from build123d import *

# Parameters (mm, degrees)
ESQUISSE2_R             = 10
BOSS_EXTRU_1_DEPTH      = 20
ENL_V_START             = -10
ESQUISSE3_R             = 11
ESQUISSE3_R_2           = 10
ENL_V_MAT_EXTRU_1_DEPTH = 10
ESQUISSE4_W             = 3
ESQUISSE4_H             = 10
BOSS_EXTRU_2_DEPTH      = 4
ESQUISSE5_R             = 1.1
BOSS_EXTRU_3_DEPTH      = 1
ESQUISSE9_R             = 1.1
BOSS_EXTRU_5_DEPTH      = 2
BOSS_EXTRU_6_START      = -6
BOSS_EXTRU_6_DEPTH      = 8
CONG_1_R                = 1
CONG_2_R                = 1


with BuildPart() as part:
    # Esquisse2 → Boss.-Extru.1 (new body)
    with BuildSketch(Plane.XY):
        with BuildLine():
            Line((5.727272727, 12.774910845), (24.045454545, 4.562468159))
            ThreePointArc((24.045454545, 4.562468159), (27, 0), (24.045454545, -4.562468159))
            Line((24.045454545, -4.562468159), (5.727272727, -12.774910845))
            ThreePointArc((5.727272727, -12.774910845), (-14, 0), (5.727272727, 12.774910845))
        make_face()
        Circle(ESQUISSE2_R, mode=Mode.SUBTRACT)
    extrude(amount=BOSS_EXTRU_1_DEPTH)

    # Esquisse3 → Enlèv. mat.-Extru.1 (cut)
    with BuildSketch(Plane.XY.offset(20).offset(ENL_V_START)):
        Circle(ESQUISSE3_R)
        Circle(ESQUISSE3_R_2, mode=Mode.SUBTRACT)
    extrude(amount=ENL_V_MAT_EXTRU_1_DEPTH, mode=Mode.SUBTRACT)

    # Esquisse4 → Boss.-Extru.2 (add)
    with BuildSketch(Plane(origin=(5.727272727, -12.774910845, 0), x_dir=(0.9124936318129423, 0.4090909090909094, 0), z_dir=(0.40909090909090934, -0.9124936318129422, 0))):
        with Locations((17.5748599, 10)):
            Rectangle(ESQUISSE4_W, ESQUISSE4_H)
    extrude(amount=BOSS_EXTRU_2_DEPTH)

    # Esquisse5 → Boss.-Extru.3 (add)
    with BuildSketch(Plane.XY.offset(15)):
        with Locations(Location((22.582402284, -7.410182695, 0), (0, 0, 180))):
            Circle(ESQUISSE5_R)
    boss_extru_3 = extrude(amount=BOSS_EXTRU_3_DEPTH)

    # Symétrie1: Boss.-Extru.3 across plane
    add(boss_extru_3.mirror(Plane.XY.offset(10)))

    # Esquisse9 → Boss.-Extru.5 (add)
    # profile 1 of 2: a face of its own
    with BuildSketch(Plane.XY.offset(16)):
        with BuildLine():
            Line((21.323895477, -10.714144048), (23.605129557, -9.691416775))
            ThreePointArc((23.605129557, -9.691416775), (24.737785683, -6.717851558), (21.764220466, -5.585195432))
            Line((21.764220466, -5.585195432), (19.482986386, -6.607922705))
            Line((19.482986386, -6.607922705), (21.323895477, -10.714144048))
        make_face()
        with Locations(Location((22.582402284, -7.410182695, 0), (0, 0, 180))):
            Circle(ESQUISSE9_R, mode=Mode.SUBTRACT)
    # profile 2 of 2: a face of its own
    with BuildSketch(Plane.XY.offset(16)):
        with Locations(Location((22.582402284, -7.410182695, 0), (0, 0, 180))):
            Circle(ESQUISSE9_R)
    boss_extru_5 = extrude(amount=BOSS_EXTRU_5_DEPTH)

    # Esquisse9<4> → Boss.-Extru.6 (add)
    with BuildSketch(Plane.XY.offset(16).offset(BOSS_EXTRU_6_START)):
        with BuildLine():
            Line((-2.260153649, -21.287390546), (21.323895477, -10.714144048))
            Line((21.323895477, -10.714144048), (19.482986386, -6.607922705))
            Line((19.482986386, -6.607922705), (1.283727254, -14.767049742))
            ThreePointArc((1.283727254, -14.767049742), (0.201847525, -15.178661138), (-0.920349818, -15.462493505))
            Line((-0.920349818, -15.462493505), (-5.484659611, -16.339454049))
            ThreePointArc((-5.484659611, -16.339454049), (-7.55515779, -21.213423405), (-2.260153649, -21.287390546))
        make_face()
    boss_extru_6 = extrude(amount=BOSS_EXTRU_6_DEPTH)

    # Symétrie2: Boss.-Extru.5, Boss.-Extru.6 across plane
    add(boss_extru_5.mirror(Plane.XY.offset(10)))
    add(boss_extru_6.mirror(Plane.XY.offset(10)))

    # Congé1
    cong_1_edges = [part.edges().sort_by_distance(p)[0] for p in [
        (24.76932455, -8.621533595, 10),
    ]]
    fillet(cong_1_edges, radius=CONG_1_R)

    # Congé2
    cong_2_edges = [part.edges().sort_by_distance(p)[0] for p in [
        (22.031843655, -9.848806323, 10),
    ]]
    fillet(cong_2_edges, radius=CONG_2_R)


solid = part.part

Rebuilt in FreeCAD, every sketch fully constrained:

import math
import FreeCAD as App
import Part
import Sketcher
from FreeCAD import Vector


def edges_at(feature, points):
    """Names of the edges that pass closest to the given points."""
    edges = feature.Shape.Edges
    near = lambda p: min(range(len(edges)), key=lambda i: edges[i].distToShape(Part.Vertex(*p))[0])
    return sorted({f"Edge{near(p) + 1}" for p in points})


def add_polygon(sketch, points):
    """Adds a closed chain of lines whose ends are joined by coincident constraints."""
    first, n = sketch.GeometryCount, len(points)
    for a, b in zip(points, points[1:] + points[:1]):
        sketch.addGeometry(Part.LineSegment(App.Vector(*a, 0), App.Vector(*b, 0)), False)
    for i in range(n):
        sketch.addConstraint(Sketcher.Constraint("Coincident", first + i, 2, first + (i + 1) % n, 1))

doc = App.newDocument("Part")
body = doc.addObject("PartDesign::Body", "Body")

sketch1 = doc.addObject("Sketcher::SketchObject", "Sketch")
body.addObject(sketch1)
sketch1.AttachmentSupport = (doc.XY_Plane, [""])
sketch1.MapMode = "FlatFace"
sketch1.addGeometry([
    Part.LineSegment(Vector(24, 5, 0), Vector(6, 13, 0)),
    Part.ArcOfCircle(Part.Circle(Vector(0, 0, 0), Vector(0, 0, 1), 14), math.radians(66), math.radians(294)),
    Part.LineSegment(Vector(6, -13, 0), Vector(24, -5, 0)),
    Part.ArcOfCircle(Part.Circle(Vector(22, 0, 0), Vector(0, 0, 1), 5), math.radians(-66), math.radians(66)),
    Part.Circle(Vector(0, 0, 0), Vector(0, 0, 1), 10),
], False)
sketch1.addConstraint([
    Sketcher.Constraint("Tangent", 0, 2, 1, 1),
    Sketcher.Constraint("Tangent", 1, 2, 2, 1),
    Sketcher.Constraint("Tangent", 2, 2, 3, 1),
    Sketcher.Constraint("Tangent", 3, 2, 0, 1),
    Sketcher.Constraint("Coincident", 1, 3, -1, 1),
    Sketcher.Constraint("Coincident", 4, 3, -1, 1),
    Sketcher.Constraint("PointOnObject", 3, 3, -1),
    Sketcher.Constraint("Diameter", 4, 20.0),
    Sketcher.Constraint("Radius", 1, 14.0),
    Sketcher.Constraint("Radius", 3, 5.0),
    Sketcher.Constraint("DistanceX", -1, 1, 3, 3, 22.0),
])
pad1 = doc.addObject("PartDesign::Pad", "Pad")
body.addObject(pad1)
pad1.Profile = sketch1
pad1.Length = 20

sketch2 = doc.addObject("Sketcher::SketchObject", "Sketch001")
body.addObject(sketch2)
sketch2.AttachmentSupport = (doc.XY_Plane, [""])
sketch2.MapMode = "FlatFace"
sketch2.AttachmentOffset = App.Placement(Vector(0, 0, 10), App.Rotation())
sketch2.addGeometry([
    Part.Circle(Vector(0, 0, 0), Vector(0, 0, 1), 11),
    Part.Circle(Vector(0, 0, 0), Vector(0, 0, 1), 10),
], False)
sketch2.addConstraint([
    Sketcher.Constraint("Coincident", 0, 3, -1, 1),
    Sketcher.Constraint("Coincident", 1, 3, -1, 1),
    Sketcher.Constraint("Diameter", 0, 22.0),
    Sketcher.Constraint("Diameter", 1, 20.0),
])
pocket1 = doc.addObject("PartDesign::Pocket", "Pocket")
body.addObject(pocket1)
pocket1.Profile = sketch2
pocket1.Length = 10
pocket1.Reversed = True

sketch3 = doc.addObject("Sketcher::SketchObject", "Sketch002")
body.addObject(sketch3)
sketch3.Placement = App.Placement(Vector(5.727273, -12.774911, 0), App.Rotation(Vector(0.912493632, 0.409090909, 0), Vector(0, 0, 1), Vector(0.409090909, -0.912493632, 0), "ZXY"))
add_polygon(sketch3, [(16.1, 15), (16.1, 5), (19.1, 5), (19.1, 15)])
sketch3.addConstraint([
    Sketcher.Constraint("Vertical", 0),
    Sketcher.Constraint("Horizontal", 1),
    Sketcher.Constraint("Vertical", 2),
    Sketcher.Constraint("Horizontal", 3),
    Sketcher.Constraint("DistanceX", 1, 1, 1, 2, 3.0),
    Sketcher.Constraint("DistanceY", 0, 2, 0, 1, 10.0),
    Sketcher.Constraint("DistanceY", -1, 1, 0, 2, 5.0),
    Sketcher.Constraint("DistanceX", -1, 1, 0, 2, 16.07486),
])
pad2 = doc.addObject("PartDesign::Pad", "Pad001")
body.addObject(pad2)
pad2.Profile = sketch3
pad2.Length = 4

sketch4 = doc.addObject("Sketcher::SketchObject", "Sketch003")
body.addObject(sketch4)
sketch4.AttachmentSupport = (doc.XY_Plane, [""])
sketch4.MapMode = "FlatFace"
sketch4.AttachmentOffset = App.Placement(Vector(0, 0, 15), App.Rotation())
sketch4.addGeometry(Part.Circle(Vector(22.6, -7.4, 0), Vector(0, 0, 1), 1.1), False)
sketch4.addConstraint([
    Sketcher.Constraint("Diameter", 0, 2.2),
    Sketcher.Constraint("DistanceX", -1, 1, 0, 3, 22.582402),
    Sketcher.Constraint("DistanceY", 0, 3, -1, 1, 7.410183),
])
pad3 = doc.addObject("PartDesign::Pad", "Pad002")
body.addObject(pad3)
pad3.Profile = sketch4
pad3.Length = 1
doc.recompute()

datumplane = doc.addObject("PartDesign::Plane", "DatumPlane")
body.addObject(datumplane)
datumplane.AttachmentSupport = (doc.XY_Plane, [""])
datumplane.MapMode = "FlatFace"
datumplane.AttachmentOffset = App.Placement(Vector(0, 0, 10), App.Rotation())
mirrored = doc.addObject("PartDesign::Mirrored", "Mirrored")
body.addObject(mirrored)
mirrored.Originals = [pad3]
mirrored.MirrorPlane = (datumplane, [""])
body.Tip = mirrored

sketch5 = doc.addObject("Sketcher::SketchObject", "Sketch004")
body.addObject(sketch5)
sketch5.AttachmentSupport = (doc.XY_Plane, [""])
sketch5.MapMode = "FlatFace"
sketch5.AttachmentOffset = App.Placement(Vector(0, 0, 16), App.Rotation())
sketch5.addGeometry([
    Part.LineSegment(Vector(21.3, -10.7, 0), Vector(23.6, -9.7, 0)),
    Part.ArcOfCircle(Part.Circle(Vector(22.7, -7.6, 0), Vector(0, 0, 1), 2.2), math.radians(-66), math.radians(114)),
    Part.LineSegment(Vector(21.8, -5.6, 0), Vector(19.5, -6.6, 0)),
    Part.LineSegment(Vector(19.5, -6.6, 0), Vector(21.3, -10.7, 0)),
], False)
sketch5.addConstraint([
    Sketcher.Constraint("Tangent", 0, 2, 1, 1),
    Sketcher.Constraint("Tangent", 1, 2, 2, 1),
    Sketcher.Constraint("Coincident", 2, 2, 3, 1),
    Sketcher.Constraint("Coincident", 3, 2, 0, 1),
    Sketcher.Constraint("Parallel", 0, 2),
    Sketcher.Constraint("Perpendicular", 2, 3),
    Sketcher.Constraint("Radius", 1, 2.25),
    Sketcher.Constraint("Distance", 0, 2.5),
    Sketcher.Constraint("DistanceX", -1, 1, 0, 2, 23.60513),
    Sketcher.Constraint("DistanceX", -1, 1, 1, 2, 21.76422),
    Sketcher.Constraint("DistanceY", 1, 3, -1, 1, 7.638306),
])
pad4 = doc.addObject("PartDesign::Pad", "Pad003")
body.addObject(pad4)
pad4.Profile = sketch5
pad4.Length = 2

sketch6 = doc.addObject("Sketcher::SketchObject", "Sketch005")
body.addObject(sketch6)
sketch6.AttachmentSupport = (doc.XY_Plane, [""])
sketch6.MapMode = "FlatFace"
sketch6.AttachmentOffset = App.Placement(Vector(0, 0, 10), App.Rotation())
sketch6.addGeometry([
    Part.LineSegment(Vector(-2.3, -21.3, 0), Vector(21.3, -10.7, 0)),
    Part.LineSegment(Vector(21.3, -10.7, 0), Vector(19.5, -6.6, 0)),
    Part.LineSegment(Vector(19.5, -6.6, 0), Vector(1.3, -14.8, 0)),
    Part.ArcOfCircle(Part.Circle(Vector(-2.8, -5.6, 0), Vector(0, 0, 1), 10), math.radians(-79.12), math.radians(-65.85)),
    Part.LineSegment(Vector(-0.9, -15.5, 0), Vector(-5.5, -16.3, 0)),
    Part.ArcOfCircle(Part.Circle(Vector(-4.9, -19.5, 0), Vector(0, 0, 1), 3.2), math.radians(101), math.radians(325)),
], False)
sketch6.addConstraint([
    Sketcher.Constraint("Coincident", 0, 2, 1, 1),
    Sketcher.Constraint("Coincident", 1, 2, 2, 1),
    Sketcher.Constraint("Tangent", 2, 2, 3, 2),
    Sketcher.Constraint("Tangent", 3, 1, 4, 1),
    Sketcher.Constraint("Tangent", 4, 2, 5, 1),
    Sketcher.Constraint("Coincident", 5, 2, 0, 1),
    Sketcher.Constraint("Perpendicular", 0, 1),
    Sketcher.Constraint("Perpendicular", 1, 2),
    Sketcher.Constraint("Radius", 3, 10.0),
    Sketcher.Constraint("Distance", 1, 4.5),
    Sketcher.Constraint("Radius", 5, 3.18973),
    Sketcher.Constraint("DistanceY", 5, 2, 5, 3, 1.815501),
    Sketcher.Constraint("DistanceX", 3, 3, -1, 1, 2.807182),
    Sketcher.Constraint("DistanceX", 5, 3, -1, 1, 4.882811),
    Sketcher.Constraint("DistanceY", 5, 3, -1, 1, 19.47189),
    Sketcher.Constraint("DistanceY", 2, 2, -1, 1, 14.76705),
    Sketcher.Constraint("DistanceY", 0, 2, 3, 3, 5.072031),
])
pad5 = doc.addObject("PartDesign::Pad", "Pad004")
body.addObject(pad5)
pad5.Profile = sketch6
pad5.Length = 8
doc.recompute()

datumplane2 = doc.addObject("PartDesign::Plane", "DatumPlane001")
body.addObject(datumplane2)
datumplane2.AttachmentSupport = (doc.XY_Plane, [""])
datumplane2.MapMode = "FlatFace"
datumplane2.AttachmentOffset = App.Placement(Vector(0, 0, 10), App.Rotation())
mirrored2 = doc.addObject("PartDesign::Mirrored", "Mirrored001")
body.addObject(mirrored2)
mirrored2.Originals = [pad4, pad5]
mirrored2.MirrorPlane = (datumplane2, [""])
body.Tip = mirrored2
doc.recompute()

fillet = doc.addObject("PartDesign::Fillet", "Fillet")
body.addObject(fillet)
fillet.Base = (mirrored2, edges_at(mirrored2, [(24.769, -8.622, 10)]))
fillet.Radius = 1
doc.recompute()

fillet2 = doc.addObject("PartDesign::Fillet", "Fillet001")
body.addObject(fillet2)
fillet2.Base = (fillet, edges_at(fillet, [(22.032, -9.849, 10)]))
fillet2.Radius = 1

doc.recompute()
